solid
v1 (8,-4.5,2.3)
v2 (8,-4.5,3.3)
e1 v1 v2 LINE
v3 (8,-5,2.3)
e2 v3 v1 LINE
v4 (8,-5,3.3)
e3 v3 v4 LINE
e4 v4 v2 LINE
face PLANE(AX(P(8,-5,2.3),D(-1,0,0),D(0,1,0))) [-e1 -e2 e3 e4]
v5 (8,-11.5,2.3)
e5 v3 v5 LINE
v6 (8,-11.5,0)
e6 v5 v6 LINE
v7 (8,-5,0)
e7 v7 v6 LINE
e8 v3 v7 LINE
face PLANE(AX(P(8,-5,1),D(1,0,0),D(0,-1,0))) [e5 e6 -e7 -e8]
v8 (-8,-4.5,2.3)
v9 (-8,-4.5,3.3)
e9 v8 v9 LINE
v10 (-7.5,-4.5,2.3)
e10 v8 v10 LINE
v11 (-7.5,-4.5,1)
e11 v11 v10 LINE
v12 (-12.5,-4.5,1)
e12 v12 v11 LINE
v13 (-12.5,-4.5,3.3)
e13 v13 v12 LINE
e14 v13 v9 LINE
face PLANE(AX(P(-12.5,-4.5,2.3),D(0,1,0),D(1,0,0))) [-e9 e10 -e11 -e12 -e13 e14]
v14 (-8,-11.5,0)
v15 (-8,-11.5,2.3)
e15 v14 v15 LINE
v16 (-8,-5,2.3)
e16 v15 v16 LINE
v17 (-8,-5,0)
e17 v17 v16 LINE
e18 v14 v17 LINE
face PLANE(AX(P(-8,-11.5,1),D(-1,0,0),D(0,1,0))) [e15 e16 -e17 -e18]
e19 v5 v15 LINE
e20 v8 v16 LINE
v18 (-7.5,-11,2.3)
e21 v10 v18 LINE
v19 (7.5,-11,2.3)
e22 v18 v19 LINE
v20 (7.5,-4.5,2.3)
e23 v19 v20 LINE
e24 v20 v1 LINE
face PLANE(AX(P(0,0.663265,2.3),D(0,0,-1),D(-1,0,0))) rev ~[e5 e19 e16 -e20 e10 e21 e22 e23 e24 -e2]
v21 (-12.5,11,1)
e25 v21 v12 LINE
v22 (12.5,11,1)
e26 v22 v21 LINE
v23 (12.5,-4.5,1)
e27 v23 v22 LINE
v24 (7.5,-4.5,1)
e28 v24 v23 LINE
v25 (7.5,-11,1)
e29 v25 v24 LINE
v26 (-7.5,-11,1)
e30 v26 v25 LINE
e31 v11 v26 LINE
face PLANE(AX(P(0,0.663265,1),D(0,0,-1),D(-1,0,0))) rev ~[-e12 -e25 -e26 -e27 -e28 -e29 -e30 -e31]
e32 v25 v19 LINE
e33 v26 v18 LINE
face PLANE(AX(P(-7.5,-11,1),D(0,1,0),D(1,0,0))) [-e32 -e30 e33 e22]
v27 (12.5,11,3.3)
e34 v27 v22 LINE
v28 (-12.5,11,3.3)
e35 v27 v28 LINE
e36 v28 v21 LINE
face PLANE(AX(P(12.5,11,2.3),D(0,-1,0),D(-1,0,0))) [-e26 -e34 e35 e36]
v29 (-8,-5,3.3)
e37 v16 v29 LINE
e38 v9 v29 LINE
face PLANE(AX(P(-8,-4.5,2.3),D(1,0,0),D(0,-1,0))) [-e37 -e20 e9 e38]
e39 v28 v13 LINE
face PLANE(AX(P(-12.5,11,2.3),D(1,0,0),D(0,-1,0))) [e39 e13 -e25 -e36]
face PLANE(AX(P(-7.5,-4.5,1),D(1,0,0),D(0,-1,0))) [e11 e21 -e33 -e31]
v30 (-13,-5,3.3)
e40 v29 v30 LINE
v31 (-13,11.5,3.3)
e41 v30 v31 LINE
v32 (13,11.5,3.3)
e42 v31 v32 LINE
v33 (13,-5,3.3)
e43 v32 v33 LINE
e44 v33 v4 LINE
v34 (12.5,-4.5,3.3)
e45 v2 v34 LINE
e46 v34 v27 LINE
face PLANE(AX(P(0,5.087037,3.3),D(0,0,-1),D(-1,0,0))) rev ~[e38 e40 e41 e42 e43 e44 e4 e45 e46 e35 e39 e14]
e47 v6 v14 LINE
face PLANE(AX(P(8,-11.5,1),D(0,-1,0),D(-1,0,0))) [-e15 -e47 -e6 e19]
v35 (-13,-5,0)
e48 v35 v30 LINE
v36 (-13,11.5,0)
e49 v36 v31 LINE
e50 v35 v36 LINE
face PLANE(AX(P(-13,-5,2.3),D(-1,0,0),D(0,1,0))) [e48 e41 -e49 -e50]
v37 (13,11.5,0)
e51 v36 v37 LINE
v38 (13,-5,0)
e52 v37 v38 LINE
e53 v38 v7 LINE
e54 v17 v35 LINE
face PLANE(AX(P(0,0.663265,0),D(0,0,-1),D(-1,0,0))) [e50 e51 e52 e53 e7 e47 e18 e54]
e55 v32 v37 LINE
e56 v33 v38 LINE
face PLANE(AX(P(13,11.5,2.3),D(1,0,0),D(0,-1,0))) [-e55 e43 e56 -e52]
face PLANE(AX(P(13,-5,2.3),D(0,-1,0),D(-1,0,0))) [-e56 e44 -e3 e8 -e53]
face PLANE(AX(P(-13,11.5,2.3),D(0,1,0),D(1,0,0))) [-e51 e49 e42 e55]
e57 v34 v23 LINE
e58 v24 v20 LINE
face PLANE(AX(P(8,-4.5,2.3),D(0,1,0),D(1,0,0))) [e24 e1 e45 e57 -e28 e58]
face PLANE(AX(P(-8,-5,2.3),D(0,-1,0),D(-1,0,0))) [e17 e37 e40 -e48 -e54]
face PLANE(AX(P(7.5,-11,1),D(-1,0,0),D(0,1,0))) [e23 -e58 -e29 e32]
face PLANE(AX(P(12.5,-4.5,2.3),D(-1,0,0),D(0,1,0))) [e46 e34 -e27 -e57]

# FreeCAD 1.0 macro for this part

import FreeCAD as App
import Part
import Sketcher

V = App.Vector
Q = App.Units.Quantity

doc = App.newDocument("Part")
body = doc.addObject("PartDesign::Body", "Body")

# Sketch on XY plane
sketch1 = body.newObject("Sketcher::SketchObject", "Sketch")
sketch1.AttachmentSupport = (doc.getObject("XY_Plane"), [""])
sketch1.MapMode = "FlatFace"
sketch1.addGeometry(Part.LineSegment(V(13, 12, 0), V(-13, 12, 0)), False)
sketch1.addGeometry(Part.LineSegment(V(-13, 12, 0), V(-13, -5, 0)), False)
sketch1.addGeometry(Part.LineSegment(V(-13, -5, 0), V(-8, -5, 0)), False)
sketch1.addGeometry(Part.LineSegment(V(-8, -5, 0), V(-8, -12, 0)), False)
sketch1.addGeometry(Part.LineSegment(V(-8, -12, 0), V(8, -12, 0)), False)
sketch1.addGeometry(Part.LineSegment(V(8, -12, 0), V(8, -5, 0)), False)
sketch1.addGeometry(Part.LineSegment(V(8, -5, 0), V(13, -5, 0)), False)
sketch1.addGeometry(Part.LineSegment(V(13, -5, 0), V(13, 12, 0)), False)
sketch1.addConstraint(Sketcher.Constraint("Coincident", 0, 2, 1, 1))
sketch1.addConstraint(Sketcher.Constraint("Coincident", 1, 2, 2, 1))
sketch1.addConstraint(Sketcher.Constraint("Coincident", 2, 2, 3, 1))
sketch1.addConstraint(Sketcher.Constraint("Coincident", 3, 2, 4, 1))
sketch1.addConstraint(Sketcher.Constraint("Coincident", 4, 2, 5, 1))
sketch1.addConstraint(Sketcher.Constraint("Coincident", 5, 2, 6, 1))
sketch1.addConstraint(Sketcher.Constraint("Coincident", 6, 2, 7, 1))
sketch1.addConstraint(Sketcher.Constraint("Coincident", 7, 2, 0, 1))
sketch1.addConstraint(Sketcher.Constraint("Horizontal", 0))
sketch1.addConstraint(Sketcher.Constraint("Vertical", 1))
sketch1.addConstraint(Sketcher.Constraint("Horizontal", 2))
sketch1.addConstraint(Sketcher.Constraint("Vertical", 3))
sketch1.addConstraint(Sketcher.Constraint("Horizontal", 4))
sketch1.addConstraint(Sketcher.Constraint("Vertical", 5))
sketch1.addConstraint(Sketcher.Constraint("Horizontal", 6))
sketch1.addConstraint(Sketcher.Constraint("Vertical", 7))
sketch1.addConstraint(Sketcher.Constraint("Symmetric", 2, 2, 5, 2, -2))
sketch1.addConstraint(Sketcher.Constraint("Equal", 2, 6))
sketch1.addConstraint(Sketcher.Constraint("DistanceX", 0, 2, 0, 1, Q("26 mm")))
sketch1.addConstraint(Sketcher.Constraint("DistanceX", 2, 1, 2, 2, Q("5 mm")))
sketch1.addConstraint(Sketcher.Constraint("DistanceY", 1, 2, 1, 1, Q("16.5 mm")))
sketch1.addConstraint(Sketcher.Constraint("DistanceY", 3, 2, 3, 1, Q("6.5 mm")))
sketch1.addConstraint(Sketcher.Constraint("DistanceY", 1, 2, -1, 1, Q("5 mm")))
pad1 = body.newObject("PartDesign::Pad", "Pad")
pad1.Profile = sketch1
pad1.Length = 1

# Sketch on XY plane
sketch2 = body.newObject("Sketcher::SketchObject", "Sketch001")
sketch2.AttachmentSupport = (doc.getObject("XY_Plane"), [""])
sketch2.MapMode = "FlatFace"
sketch2.AttachmentOffset = App.Placement(V(0, 0, 1), App.Rotation())
sketch2.addGeometry(Part.LineSegment(V(13, 12, 0), V(-13, 12, 0)), False)
sketch2.addGeometry(Part.LineSegment(V(-13, 12, 0), V(-13, -5, 0)), False)
sketch2.addGeometry(Part.LineSegment(V(-13, -5, 0), V(-8, -5, 0)), False)
sketch2.addGeometry(Part.LineSegment(V(-8, -5, 0), V(-8, -12, 0)), False)
sketch2.addGeometry(Part.LineSegment(V(-8, -12, 0), V(8, -12, 0)), False)
sketch2.addGeometry(Part.LineSegment(V(8, -12, 0), V(8, -5, 0)), False)
sketch2.addGeometry(Part.LineSegment(V(8, -5, 0), V(13, -5, 0)), False)
sketch2.addGeometry(Part.LineSegment(V(13, -5, 0), V(13, 12, 0)), False)
sketch2.addGeometry(Part.LineSegment(V(-12, 11, 0), V(12, 11, 0)), False)
sketch2.addGeometry(Part.LineSegment(V(12, 11, 0), V(12, -4, 0)), False)
sketch2.addGeometry(Part.LineSegment(V(12, -4, 0), V(8, -4, 0)), False)
sketch2.addGeometry(Part.LineSegment(V(8, -4, 0), V(8, -11, 0)), False)
sketch2.addGeometry(Part.LineSegment(V(8, -11, 0), V(-8, -11, 0)), False)
sketch2.addGeometry(Part.LineSegment(V(-8, -11, 0), V(-8, -4, 0)), False)
sketch2.addGeometry(Part.LineSegment(V(-8, -4, 0), V(-12, -4, 0)), False)
sketch2.addGeometry(Part.LineSegment(V(-12, -4, 0), V(-12, 11, 0)), False)
sketch2.addConstraint(Sketcher.Constraint("Coincident", 0, 2, 1, 1))
sketch2.addConstraint(Sketcher.Constraint("Coincident", 1, 2, 2, 1))
sketch2.addConstraint(Sketcher.Constraint("Coincident", 2, 2, 3, 1))
sketch2.addConstraint(Sketcher.Constraint("Coincident", 3, 2, 4, 1))
sketch2.addConstraint(Sketcher.Constraint("Coincident", 4, 2, 5, 1))
sketch2.addConstraint(Sketcher.Constraint("Coincident", 5, 2, 6, 1))
sketch2.addConstraint(Sketcher.Constraint("Coincident", 6, 2, 7, 1))
sketch2.addConstraint(Sketcher.Constraint("Coincident", 7, 2, 0, 1))
sketch2.addConstraint(Sketcher.Constraint("Coincident", 8, 2, 9, 1))
sketch2.addConstraint(Sketcher.Constraint("Coincident", 9, 2, 10, 1))
sketch2.addConstraint(Sketcher.Constraint("Coincident", 10, 2, 11, 1))
sketch2.addConstraint(Sketcher.Constraint("Coincident", 11, 2, 12, 1))
sketch2.addConstraint(Sketcher.Constraint("Coincident", 12, 2, 13, 1))
sketch2.addConstraint(Sketcher.Constraint("Coincident", 13, 2, 14, 1))
sketch2.addConstraint(Sketcher.Constraint("Coincident", 14, 2, 15, 1))
sketch2.addConstraint(Sketcher.Constraint("Coincident", 15, 2, 8, 1))
sketch2.addConstraint(Sketcher.Constraint("Horizontal", 0))
sketch2.addConstraint(Sketcher.Constraint("Vertical", 1))
sketch2.addConstraint(Sketcher.Constraint("Horizontal", 2))
sketch2.addConstraint(Sketcher.Constraint("Vertical", 3))
sketch2.addConstraint(Sketcher.Constraint("Horizontal", 4))
sketch2.addConstraint(Sketcher.Constraint("Vertical", 5))
sketch2.addConstraint(Sketcher.Constraint("Horizontal", 6))
sketch2.addConstraint(Sketcher.Constraint("Vertical", 7))
sketch2.addConstraint(Sketcher.Constraint("Horizontal", 8))
sketch2.addConstraint(Sketcher.Constraint("Vertical", 9))
sketch2.addConstraint(Sketcher.Constraint("Horizontal", 10))
sketch2.addConstraint(Sketcher.Constraint("Vertical", 11))
sketch2.addConstraint(Sketcher.Constraint("Horizontal", 12))
sketch2.addConstraint(Sketcher.Constraint("Vertical", 13))
sketch2.addConstraint(Sketcher.Constraint("Horizontal", 14))
sketch2.addConstraint(Sketcher.Constraint("Vertical", 15))
sketch2.addConstraint(Sketcher.Constraint("Symmetric", 2, 2, 5, 2, -2))
sketch2.addConstraint(Sketcher.Constraint("Symmetric", 10, 2, 13, 2, -2))
sketch2.addConstraint(Sketcher.Constraint("Equal", 2, 6))
sketch2.addConstraint(Sketcher.Constraint("Equal", 6, 10))
sketch2.addConstraint(Sketcher.Constraint("Equal", 10, 14))
sketch2.addConstraint(Sketcher.Constraint("Equal", 5, 11))
sketch2.addConstraint(Sketcher.Constraint("DistanceX", 0, 2, 0, 1, Q("26 mm")))
sketch2.addConstraint(Sketcher.Constraint("DistanceX", 2, 1, 2, 2, Q("5 mm")))
sketch2.addConstraint(Sketcher.Constraint("DistanceX", 8, 1, 8, 2, Q("25 mm")))
sketch2.addConstraint(Sketcher.Constraint("DistanceY", 1, 2, 1, 1, Q("16.5 mm")))
sketch2.addConstraint(Sketcher.Constraint("DistanceY", 3, 2, 3, 1, Q("6.5 mm")))
sketch2.addConstraint(Sketcher.Constraint("DistanceY", 9, 2, 9, 1, Q("15.5 mm")))
sketch2.addConstraint(Sketcher.Constraint("DistanceY", 1, 2, -1, 1, Q("5 mm")))
sketch2.addConstraint(Sketcher.Constraint("DistanceY", -1, 1, 8, 2, Q("11 mm")))
pad2 = body.newObject("PartDesign::Pad", "Pad001")
pad2.Profile = sketch2
pad2.Length = 1.3

# Sketch on XY plane
sketch3 = body.newObject("Sketcher::SketchObject", "Sketch002")
sketch3.AttachmentSupport = (doc.getObject("XY_Plane"), [""])
sketch3.MapMode = "FlatFace"
sketch3.AttachmentOffset = App.Placement(V(0, 0, 2.3), App.Rotation())
sketch3.addGeometry(Part.LineSegment(V(13, 11.5, 0), V(-13, 11.5, 0)), False)
sketch3.addGeometry(Part.LineSegment(V(-13, 11.5, 0), V(-13, -5, 0)), False)
sketch3.addGeometry(Part.LineSegment(V(-13, -5, 0), V(-8, -5, 0)), False)
sketch3.addGeometry(Part.LineSegment(V(-8, -5, 0), V(-8, -4.5, 0)), False)
sketch3.addGeometry(Part.LineSegment(V(-8, -4.5, 0), V(-12.5, -4.5, 0)), False)
sketch3.addGeometry(Part.LineSegment(V(-12.5, -4.5, 0), V(-12.5, 11, 0)), False)
sketch3.addGeometry(Part.LineSegment(V(-12.5, 11, 0), V(12.5, 11, 0)), False)
sketch3.addGeometry(Part.LineSegment(V(12.5, 11, 0), V(12.5, -4.5, 0)), False)
sketch3.addGeometry(Part.LineSegment(V(12.5, -4.5, 0), V(8, -4.5, 0)), False)
sketch3.addGeometry(Part.LineSegment(V(8, -4.5, 0), V(8, -5, 0)), False)
sketch3.addGeometry(Part.LineSegment(V(8, -5, 0), V(13, -5, 0)), False)
sketch3.addGeometry(Part.LineSegment(V(13, -5, 0), V(13, 11.5, 0)), False)
sketch3.addConstraint(Sketcher.Constraint("Coincident", 0, 2, 1, 1))
sketch3.addConstraint(Sketcher.Constraint("Coincident", 1, 2, 2, 1))
sketch3.addConstraint(Sketcher.Constraint("Coincident", 2, 2, 3, 1))
sketch3.addConstraint(Sketcher.Constraint("Coincident", 3, 2, 4, 1))
sketch3.addConstraint(Sketcher.Constraint("Coincident", 4, 2, 5, 1))
sketch3.addConstraint(Sketcher.Constraint("Coincident", 5, 2, 6, 1))
sketch3.addConstraint(Sketcher.Constraint("Coincident", 6, 2, 7, 1))
sketch3.addConstraint(Sketcher.Constraint("Coincident", 7, 2, 8, 1))
sketch3.addConstraint(Sketcher.Constraint("Coincident", 8, 2, 9, 1))
sketch3.addConstraint(Sketcher.Constraint("Coincident", 9, 2, 10, 1))
sketch3.addConstraint(Sketcher.Constraint("Coincident", 10, 2, 11, 1))
sketch3.addConstraint(Sketcher.Constraint("Coincident", 11, 2, 0, 1))
sketch3.addConstraint(Sketcher.Constraint("Horizontal", 0))
sketch3.addConstraint(Sketcher.Constraint("Vertical", 1))
sketch3.addConstraint(Sketcher.Constraint("Horizontal", 2))
sketch3.addConstraint(Sketcher.Constraint("Vertical", 3))
sketch3.addConstraint(Sketcher.Constraint("Horizontal", 4))
sketch3.addConstraint(Sketcher.Constraint("Vertical", 5))
sketch3.addConstraint(Sketcher.Constraint("Horizontal", 6))
sketch3.addConstraint(Sketcher.Constraint("Vertical", 7))
sketch3.addConstraint(Sketcher.Constraint("Horizontal", 8))
sketch3.addConstraint(Sketcher.Constraint("Vertical", 9))
sketch3.addConstraint(Sketcher.Constraint("Horizontal", 10))
sketch3.addConstraint(Sketcher.Constraint("Vertical", 11))
sketch3.addConstraint(Sketcher.Constraint("Symmetric", 4, 2, 7, 2, -2))
sketch3.addConstraint(Sketcher.Constraint("Symmetric", 2, 2, 9, 2, -2))
sketch3.addConstraint(Sketcher.Constraint("Equal", 2, 10))
sketch3.addConstraint(Sketcher.Constraint("DistanceX", 0, 2, 0, 1, Q("26 mm")))
sketch3.addConstraint(Sketcher.Constraint("DistanceX", 2, 1, 2, 2, Q("5 mm")))
sketch3.addConstraint(Sketcher.Constraint("DistanceX", 6, 1, 6, 2, Q("25 mm")))
sketch3.addConstraint(Sketcher.Constraint("DistanceY", 1, 2, 1, 1, Q("16.5 mm")))
sketch3.addConstraint(Sketcher.Constraint("DistanceY", 3, 1, 3, 2, Q("0.5 mm")))
sketch3.addConstraint(Sketcher.Constraint("DistanceY", 5, 1, 5, 2, Q("15.5 mm")))
sketch3.addConstraint(Sketcher.Constraint("DistanceY", 1, 2, -1, 1, Q("5 mm")))
pad3 = body.newObject("PartDesign::Pad", "Pad002")
pad3.Profile = sketch3
pad3.Length = 1

doc.recompute()
